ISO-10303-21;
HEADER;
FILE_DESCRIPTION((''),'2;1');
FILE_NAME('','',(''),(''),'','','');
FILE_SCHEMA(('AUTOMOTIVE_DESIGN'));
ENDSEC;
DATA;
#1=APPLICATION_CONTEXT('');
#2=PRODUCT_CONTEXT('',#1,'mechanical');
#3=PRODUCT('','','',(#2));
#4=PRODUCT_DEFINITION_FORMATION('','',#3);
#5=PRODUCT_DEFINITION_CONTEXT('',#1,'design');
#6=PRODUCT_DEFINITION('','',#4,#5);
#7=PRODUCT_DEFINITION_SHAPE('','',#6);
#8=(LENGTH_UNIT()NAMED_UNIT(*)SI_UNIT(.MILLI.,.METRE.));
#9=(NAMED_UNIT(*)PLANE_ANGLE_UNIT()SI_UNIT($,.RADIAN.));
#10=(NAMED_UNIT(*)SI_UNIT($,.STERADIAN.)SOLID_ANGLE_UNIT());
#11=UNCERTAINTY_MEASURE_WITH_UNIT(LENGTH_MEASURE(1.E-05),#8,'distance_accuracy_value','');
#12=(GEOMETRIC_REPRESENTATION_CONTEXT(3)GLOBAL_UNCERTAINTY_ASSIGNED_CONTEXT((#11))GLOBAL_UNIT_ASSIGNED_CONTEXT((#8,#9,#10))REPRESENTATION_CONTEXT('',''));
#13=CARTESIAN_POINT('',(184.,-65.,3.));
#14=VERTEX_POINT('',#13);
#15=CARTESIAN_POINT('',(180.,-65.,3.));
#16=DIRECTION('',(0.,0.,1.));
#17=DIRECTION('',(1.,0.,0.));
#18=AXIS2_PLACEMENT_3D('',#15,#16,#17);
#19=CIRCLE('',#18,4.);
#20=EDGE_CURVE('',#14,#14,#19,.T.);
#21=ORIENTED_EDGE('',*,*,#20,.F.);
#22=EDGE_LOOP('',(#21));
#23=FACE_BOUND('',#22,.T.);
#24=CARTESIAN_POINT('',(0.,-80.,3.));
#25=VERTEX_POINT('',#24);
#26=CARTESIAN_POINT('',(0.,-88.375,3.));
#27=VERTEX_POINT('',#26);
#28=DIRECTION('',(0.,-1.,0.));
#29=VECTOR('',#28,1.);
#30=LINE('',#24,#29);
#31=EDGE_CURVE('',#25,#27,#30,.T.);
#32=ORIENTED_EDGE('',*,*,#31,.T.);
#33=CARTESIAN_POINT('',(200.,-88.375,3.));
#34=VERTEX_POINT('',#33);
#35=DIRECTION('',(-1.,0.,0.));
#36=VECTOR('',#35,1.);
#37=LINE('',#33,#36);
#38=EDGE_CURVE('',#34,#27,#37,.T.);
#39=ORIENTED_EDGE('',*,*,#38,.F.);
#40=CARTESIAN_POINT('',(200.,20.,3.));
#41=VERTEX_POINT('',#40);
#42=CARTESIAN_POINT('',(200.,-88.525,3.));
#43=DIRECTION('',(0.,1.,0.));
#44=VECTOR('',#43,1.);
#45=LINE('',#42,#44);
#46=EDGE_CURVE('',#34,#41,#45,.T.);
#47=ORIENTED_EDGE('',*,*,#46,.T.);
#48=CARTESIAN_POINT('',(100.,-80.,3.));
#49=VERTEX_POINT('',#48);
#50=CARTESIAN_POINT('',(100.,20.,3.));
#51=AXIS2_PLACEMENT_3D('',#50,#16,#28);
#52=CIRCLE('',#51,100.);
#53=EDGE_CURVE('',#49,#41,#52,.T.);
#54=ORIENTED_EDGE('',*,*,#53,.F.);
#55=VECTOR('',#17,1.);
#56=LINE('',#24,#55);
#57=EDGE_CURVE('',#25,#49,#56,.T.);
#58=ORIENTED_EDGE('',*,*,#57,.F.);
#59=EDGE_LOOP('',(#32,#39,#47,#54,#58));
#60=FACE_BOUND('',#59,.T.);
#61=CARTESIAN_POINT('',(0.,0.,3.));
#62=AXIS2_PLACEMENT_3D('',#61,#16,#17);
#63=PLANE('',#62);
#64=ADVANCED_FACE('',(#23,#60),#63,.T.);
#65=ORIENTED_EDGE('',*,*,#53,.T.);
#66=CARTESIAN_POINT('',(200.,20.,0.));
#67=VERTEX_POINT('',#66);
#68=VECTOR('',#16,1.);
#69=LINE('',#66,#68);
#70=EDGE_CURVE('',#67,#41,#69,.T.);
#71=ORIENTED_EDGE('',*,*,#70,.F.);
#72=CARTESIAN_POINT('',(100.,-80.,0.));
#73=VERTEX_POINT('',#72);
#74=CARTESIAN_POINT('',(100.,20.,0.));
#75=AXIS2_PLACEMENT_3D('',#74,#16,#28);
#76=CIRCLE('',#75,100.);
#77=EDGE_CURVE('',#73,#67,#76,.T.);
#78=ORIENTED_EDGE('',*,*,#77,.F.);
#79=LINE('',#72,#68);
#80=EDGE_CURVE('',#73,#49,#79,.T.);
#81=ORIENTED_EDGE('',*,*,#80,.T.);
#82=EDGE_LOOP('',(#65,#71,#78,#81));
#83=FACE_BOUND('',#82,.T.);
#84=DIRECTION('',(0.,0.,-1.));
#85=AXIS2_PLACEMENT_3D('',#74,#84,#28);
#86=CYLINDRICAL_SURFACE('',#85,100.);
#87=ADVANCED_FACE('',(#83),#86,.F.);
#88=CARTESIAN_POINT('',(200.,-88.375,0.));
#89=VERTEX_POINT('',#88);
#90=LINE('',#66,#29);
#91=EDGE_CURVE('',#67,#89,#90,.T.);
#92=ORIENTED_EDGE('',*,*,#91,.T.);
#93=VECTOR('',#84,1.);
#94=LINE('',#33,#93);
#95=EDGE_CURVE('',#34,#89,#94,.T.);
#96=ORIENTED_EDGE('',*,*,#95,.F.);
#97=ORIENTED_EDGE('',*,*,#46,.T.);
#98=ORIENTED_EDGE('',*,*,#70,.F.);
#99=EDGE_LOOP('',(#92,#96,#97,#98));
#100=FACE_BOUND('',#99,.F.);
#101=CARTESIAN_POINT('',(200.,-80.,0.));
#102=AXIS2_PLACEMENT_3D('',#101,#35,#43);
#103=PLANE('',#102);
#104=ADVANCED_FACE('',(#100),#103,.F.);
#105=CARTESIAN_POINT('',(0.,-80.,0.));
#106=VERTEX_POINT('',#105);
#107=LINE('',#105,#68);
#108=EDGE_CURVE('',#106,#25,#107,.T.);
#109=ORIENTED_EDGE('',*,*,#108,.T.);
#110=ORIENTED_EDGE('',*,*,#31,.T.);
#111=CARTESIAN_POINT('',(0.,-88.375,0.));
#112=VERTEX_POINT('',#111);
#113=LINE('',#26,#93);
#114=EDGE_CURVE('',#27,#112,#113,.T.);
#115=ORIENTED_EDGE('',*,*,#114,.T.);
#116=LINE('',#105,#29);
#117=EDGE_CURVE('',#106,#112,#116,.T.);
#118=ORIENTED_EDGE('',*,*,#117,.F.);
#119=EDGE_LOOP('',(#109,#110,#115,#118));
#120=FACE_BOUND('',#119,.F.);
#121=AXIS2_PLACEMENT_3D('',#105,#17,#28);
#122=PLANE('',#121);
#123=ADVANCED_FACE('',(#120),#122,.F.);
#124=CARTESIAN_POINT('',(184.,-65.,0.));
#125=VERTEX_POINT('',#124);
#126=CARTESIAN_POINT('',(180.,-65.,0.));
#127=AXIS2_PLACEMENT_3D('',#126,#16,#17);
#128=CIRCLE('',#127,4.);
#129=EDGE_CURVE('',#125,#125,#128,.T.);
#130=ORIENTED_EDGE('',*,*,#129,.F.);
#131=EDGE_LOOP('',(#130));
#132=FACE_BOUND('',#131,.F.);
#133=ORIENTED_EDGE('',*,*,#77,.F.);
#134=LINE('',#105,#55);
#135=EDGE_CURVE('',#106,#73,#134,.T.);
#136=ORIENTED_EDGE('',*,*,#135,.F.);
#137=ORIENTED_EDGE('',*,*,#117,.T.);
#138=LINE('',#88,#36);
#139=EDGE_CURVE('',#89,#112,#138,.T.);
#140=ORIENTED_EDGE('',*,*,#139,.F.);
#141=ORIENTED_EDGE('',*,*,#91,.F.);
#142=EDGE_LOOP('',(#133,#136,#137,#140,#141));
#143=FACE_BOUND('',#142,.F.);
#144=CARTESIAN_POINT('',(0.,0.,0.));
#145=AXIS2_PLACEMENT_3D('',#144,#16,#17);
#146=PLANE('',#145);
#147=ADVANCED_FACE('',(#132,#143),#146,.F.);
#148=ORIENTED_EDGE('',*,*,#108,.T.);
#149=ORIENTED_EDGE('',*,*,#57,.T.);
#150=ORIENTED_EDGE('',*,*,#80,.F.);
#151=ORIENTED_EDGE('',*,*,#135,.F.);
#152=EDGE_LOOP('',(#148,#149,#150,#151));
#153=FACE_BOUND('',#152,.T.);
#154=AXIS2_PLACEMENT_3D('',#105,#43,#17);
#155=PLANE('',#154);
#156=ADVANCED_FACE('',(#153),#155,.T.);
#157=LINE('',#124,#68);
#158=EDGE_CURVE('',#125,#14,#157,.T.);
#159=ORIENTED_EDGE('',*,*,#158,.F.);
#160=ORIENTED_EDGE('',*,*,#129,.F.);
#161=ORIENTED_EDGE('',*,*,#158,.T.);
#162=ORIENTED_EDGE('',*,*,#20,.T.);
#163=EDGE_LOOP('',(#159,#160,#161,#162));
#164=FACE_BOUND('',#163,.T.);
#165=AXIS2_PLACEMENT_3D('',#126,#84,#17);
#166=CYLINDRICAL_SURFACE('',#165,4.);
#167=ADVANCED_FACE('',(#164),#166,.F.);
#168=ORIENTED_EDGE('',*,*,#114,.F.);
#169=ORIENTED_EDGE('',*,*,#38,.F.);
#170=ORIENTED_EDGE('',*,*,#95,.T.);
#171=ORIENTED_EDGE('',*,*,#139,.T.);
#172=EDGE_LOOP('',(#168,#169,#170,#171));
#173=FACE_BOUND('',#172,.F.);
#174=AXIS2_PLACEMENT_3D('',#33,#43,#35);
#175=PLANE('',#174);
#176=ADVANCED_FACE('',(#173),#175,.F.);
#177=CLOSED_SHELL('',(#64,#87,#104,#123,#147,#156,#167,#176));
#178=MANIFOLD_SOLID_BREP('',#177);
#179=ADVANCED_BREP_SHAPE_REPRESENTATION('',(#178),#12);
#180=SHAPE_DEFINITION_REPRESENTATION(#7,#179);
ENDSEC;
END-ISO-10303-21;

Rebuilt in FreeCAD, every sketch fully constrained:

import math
import FreeCAD as App
import Part
import Sketcher
from FreeCAD import Vector

doc = App.newDocument("Part")
params = doc.addObject("Spreadsheet::Sheet", "Params")
for row, (alias, value) in enumerate([
    ("sketch1_diameter", "8 mm"),
    ("sketch1_radius", "100 mm"),
    ("sketch1_width", "100 mm"),
    ("pad1_length", "3 mm"),
    ("sketch2_height", "0.15 mm"),
    ("sketch2_width", "200 mm"),
    ("pocket1_length", "3 mm"),
], start=1):
    params.set(f"A{row}", alias)
    params.set(f"B{row}", "=" + value)
    params.setAlias(f"B{row}", alias)

body = doc.addObject("PartDesign::Body", "Body")

# Sketch on XY plane
sketch1 = body.newObject("Sketcher::SketchObject", "Sketch")
sketch1.AttachmentSupport = (doc.getObject("XY_Plane"), [""])
sketch1.MapMode = "FlatFace"
sketch1.addGeometry([
    Part.LineSegment(Vector(100, -80, 0), Vector(0, -80, 0)),  # 0
    Part.LineSegment(Vector(0, -80, 0), Vector(0, -88.5, 0)),  # 1
    Part.LineSegment(Vector(0, -88.5, 0), Vector(200, -88.5, 0)),  # 2
    Part.LineSegment(Vector(200, -88.5, 0), Vector(200, 20, 0)),  # 3
    Part.ArcOfCircle(Part.Circle(Vector(100, 20, 0), Vector(0, 0, 1), 100), math.radians(-90), math.radians(0)),  # 4
    Part.Circle(Vector(180, -65, 0), Vector(0, 0, 1), 4),  # 5
], False)
sketch1.addConstraint([
    Sketcher.Constraint("Coincident", 0, 2, 1, 1),
    Sketcher.Constraint("Coincident", 1, 2, 2, 1),
    Sketcher.Constraint("Coincident", 2, 2, 3, 1),
    Sketcher.Constraint("Tangent", 3, 2, 4, 2),
    Sketcher.Constraint("Tangent", 4, 1, 0, 1),
    Sketcher.Constraint("Horizontal", 0),
    Sketcher.Constraint("Vertical", 1),
    Sketcher.Constraint("Horizontal", 2),
    Sketcher.Constraint("Vertical", 3),
    Sketcher.Constraint("PointOnObject", 0, 2, -2),
    Sketcher.Constraint("Diameter", 5, 8.0),
    Sketcher.Constraint("DistanceY", -1, 1, 4, 3, 20.0),
    Sketcher.Constraint("Radius", 4, 100.0),
    Sketcher.Constraint("DistanceY", 0, 2, 5, 3, 15.0),
    Sketcher.Constraint("DistanceX", 5, 3, 2, 2, 20.0),
    Sketcher.Constraint("DistanceX", 0, 2, 0, 1, 100.0),
    Sketcher.Constraint("DistanceY", 1, 2, 1, 1, 8.525),
])
sketch1.setExpression("Constraints[10]", "Params.sketch1_diameter")
sketch1.setExpression("Constraints[12]", "Params.sketch1_radius")
sketch1.setExpression("Constraints[15]", "Params.sketch1_width")
pad1 = body.newObject("PartDesign::Pad", "Pad")
pad1.Profile = sketch1
pad1.setExpression("Length", "Params.pad1_length")

# Sketch on XY plane
sketch2 = body.newObject("Sketcher::SketchObject", "Sketch001")
sketch2.AttachmentSupport = (doc.getObject("XY_Plane"), [""])
sketch2.MapMode = "FlatFace"
sketch2.AttachmentOffset = App.Placement(Vector(0, 0, 3), App.Rotation())
sketch2.addGeometry([
    Part.LineSegment(Vector(0, -88.53, 0), Vector(200, -88.53, 0)),
    Part.LineSegment(Vector(200, -88.53, 0), Vector(200, -88.38, 0)),
    Part.LineSegment(Vector(200, -88.38, 0), Vector(0, -88.38, 0)),
    Part.LineSegment(Vector(0, -88.38, 0), Vector(0, -88.53, 0)),
], False)
sketch2.addConstraint([
    Sketcher.Constraint("Coincident", 0, 2, 1, 1),
    Sketcher.Constraint("Coincident", 1, 2, 2, 1),
    Sketcher.Constraint("Coincident", 2, 2, 3, 1),
    Sketcher.Constraint("Coincident", 3, 2, 0, 1),
    Sketcher.Constraint("Horizontal", 0),
    Sketcher.Constraint("Vertical", 1),
    Sketcher.Constraint("Horizontal", 2),
    Sketcher.Constraint("Vertical", 3),
    Sketcher.Constraint("PointOnObject", 2, 2, -2),
    Sketcher.Constraint("DistanceY", 1, 1, 1, 2, 0.15),
    Sketcher.Constraint("DistanceX", 0, 1, 0, 2, 200.0),
    Sketcher.Constraint("DistanceY", 0, 2, -1, 1, 88.525),
])
sketch2.setExpression("Constraints[9]", "Params.sketch2_height")
sketch2.setExpression("Constraints[10]", "Params.sketch2_width")
pocket1 = body.newObject("PartDesign::Pocket", "Pocket")
pocket1.Profile = sketch2
pocket1.setExpression("Length", "Params.pocket1_length")

doc.recompute()
